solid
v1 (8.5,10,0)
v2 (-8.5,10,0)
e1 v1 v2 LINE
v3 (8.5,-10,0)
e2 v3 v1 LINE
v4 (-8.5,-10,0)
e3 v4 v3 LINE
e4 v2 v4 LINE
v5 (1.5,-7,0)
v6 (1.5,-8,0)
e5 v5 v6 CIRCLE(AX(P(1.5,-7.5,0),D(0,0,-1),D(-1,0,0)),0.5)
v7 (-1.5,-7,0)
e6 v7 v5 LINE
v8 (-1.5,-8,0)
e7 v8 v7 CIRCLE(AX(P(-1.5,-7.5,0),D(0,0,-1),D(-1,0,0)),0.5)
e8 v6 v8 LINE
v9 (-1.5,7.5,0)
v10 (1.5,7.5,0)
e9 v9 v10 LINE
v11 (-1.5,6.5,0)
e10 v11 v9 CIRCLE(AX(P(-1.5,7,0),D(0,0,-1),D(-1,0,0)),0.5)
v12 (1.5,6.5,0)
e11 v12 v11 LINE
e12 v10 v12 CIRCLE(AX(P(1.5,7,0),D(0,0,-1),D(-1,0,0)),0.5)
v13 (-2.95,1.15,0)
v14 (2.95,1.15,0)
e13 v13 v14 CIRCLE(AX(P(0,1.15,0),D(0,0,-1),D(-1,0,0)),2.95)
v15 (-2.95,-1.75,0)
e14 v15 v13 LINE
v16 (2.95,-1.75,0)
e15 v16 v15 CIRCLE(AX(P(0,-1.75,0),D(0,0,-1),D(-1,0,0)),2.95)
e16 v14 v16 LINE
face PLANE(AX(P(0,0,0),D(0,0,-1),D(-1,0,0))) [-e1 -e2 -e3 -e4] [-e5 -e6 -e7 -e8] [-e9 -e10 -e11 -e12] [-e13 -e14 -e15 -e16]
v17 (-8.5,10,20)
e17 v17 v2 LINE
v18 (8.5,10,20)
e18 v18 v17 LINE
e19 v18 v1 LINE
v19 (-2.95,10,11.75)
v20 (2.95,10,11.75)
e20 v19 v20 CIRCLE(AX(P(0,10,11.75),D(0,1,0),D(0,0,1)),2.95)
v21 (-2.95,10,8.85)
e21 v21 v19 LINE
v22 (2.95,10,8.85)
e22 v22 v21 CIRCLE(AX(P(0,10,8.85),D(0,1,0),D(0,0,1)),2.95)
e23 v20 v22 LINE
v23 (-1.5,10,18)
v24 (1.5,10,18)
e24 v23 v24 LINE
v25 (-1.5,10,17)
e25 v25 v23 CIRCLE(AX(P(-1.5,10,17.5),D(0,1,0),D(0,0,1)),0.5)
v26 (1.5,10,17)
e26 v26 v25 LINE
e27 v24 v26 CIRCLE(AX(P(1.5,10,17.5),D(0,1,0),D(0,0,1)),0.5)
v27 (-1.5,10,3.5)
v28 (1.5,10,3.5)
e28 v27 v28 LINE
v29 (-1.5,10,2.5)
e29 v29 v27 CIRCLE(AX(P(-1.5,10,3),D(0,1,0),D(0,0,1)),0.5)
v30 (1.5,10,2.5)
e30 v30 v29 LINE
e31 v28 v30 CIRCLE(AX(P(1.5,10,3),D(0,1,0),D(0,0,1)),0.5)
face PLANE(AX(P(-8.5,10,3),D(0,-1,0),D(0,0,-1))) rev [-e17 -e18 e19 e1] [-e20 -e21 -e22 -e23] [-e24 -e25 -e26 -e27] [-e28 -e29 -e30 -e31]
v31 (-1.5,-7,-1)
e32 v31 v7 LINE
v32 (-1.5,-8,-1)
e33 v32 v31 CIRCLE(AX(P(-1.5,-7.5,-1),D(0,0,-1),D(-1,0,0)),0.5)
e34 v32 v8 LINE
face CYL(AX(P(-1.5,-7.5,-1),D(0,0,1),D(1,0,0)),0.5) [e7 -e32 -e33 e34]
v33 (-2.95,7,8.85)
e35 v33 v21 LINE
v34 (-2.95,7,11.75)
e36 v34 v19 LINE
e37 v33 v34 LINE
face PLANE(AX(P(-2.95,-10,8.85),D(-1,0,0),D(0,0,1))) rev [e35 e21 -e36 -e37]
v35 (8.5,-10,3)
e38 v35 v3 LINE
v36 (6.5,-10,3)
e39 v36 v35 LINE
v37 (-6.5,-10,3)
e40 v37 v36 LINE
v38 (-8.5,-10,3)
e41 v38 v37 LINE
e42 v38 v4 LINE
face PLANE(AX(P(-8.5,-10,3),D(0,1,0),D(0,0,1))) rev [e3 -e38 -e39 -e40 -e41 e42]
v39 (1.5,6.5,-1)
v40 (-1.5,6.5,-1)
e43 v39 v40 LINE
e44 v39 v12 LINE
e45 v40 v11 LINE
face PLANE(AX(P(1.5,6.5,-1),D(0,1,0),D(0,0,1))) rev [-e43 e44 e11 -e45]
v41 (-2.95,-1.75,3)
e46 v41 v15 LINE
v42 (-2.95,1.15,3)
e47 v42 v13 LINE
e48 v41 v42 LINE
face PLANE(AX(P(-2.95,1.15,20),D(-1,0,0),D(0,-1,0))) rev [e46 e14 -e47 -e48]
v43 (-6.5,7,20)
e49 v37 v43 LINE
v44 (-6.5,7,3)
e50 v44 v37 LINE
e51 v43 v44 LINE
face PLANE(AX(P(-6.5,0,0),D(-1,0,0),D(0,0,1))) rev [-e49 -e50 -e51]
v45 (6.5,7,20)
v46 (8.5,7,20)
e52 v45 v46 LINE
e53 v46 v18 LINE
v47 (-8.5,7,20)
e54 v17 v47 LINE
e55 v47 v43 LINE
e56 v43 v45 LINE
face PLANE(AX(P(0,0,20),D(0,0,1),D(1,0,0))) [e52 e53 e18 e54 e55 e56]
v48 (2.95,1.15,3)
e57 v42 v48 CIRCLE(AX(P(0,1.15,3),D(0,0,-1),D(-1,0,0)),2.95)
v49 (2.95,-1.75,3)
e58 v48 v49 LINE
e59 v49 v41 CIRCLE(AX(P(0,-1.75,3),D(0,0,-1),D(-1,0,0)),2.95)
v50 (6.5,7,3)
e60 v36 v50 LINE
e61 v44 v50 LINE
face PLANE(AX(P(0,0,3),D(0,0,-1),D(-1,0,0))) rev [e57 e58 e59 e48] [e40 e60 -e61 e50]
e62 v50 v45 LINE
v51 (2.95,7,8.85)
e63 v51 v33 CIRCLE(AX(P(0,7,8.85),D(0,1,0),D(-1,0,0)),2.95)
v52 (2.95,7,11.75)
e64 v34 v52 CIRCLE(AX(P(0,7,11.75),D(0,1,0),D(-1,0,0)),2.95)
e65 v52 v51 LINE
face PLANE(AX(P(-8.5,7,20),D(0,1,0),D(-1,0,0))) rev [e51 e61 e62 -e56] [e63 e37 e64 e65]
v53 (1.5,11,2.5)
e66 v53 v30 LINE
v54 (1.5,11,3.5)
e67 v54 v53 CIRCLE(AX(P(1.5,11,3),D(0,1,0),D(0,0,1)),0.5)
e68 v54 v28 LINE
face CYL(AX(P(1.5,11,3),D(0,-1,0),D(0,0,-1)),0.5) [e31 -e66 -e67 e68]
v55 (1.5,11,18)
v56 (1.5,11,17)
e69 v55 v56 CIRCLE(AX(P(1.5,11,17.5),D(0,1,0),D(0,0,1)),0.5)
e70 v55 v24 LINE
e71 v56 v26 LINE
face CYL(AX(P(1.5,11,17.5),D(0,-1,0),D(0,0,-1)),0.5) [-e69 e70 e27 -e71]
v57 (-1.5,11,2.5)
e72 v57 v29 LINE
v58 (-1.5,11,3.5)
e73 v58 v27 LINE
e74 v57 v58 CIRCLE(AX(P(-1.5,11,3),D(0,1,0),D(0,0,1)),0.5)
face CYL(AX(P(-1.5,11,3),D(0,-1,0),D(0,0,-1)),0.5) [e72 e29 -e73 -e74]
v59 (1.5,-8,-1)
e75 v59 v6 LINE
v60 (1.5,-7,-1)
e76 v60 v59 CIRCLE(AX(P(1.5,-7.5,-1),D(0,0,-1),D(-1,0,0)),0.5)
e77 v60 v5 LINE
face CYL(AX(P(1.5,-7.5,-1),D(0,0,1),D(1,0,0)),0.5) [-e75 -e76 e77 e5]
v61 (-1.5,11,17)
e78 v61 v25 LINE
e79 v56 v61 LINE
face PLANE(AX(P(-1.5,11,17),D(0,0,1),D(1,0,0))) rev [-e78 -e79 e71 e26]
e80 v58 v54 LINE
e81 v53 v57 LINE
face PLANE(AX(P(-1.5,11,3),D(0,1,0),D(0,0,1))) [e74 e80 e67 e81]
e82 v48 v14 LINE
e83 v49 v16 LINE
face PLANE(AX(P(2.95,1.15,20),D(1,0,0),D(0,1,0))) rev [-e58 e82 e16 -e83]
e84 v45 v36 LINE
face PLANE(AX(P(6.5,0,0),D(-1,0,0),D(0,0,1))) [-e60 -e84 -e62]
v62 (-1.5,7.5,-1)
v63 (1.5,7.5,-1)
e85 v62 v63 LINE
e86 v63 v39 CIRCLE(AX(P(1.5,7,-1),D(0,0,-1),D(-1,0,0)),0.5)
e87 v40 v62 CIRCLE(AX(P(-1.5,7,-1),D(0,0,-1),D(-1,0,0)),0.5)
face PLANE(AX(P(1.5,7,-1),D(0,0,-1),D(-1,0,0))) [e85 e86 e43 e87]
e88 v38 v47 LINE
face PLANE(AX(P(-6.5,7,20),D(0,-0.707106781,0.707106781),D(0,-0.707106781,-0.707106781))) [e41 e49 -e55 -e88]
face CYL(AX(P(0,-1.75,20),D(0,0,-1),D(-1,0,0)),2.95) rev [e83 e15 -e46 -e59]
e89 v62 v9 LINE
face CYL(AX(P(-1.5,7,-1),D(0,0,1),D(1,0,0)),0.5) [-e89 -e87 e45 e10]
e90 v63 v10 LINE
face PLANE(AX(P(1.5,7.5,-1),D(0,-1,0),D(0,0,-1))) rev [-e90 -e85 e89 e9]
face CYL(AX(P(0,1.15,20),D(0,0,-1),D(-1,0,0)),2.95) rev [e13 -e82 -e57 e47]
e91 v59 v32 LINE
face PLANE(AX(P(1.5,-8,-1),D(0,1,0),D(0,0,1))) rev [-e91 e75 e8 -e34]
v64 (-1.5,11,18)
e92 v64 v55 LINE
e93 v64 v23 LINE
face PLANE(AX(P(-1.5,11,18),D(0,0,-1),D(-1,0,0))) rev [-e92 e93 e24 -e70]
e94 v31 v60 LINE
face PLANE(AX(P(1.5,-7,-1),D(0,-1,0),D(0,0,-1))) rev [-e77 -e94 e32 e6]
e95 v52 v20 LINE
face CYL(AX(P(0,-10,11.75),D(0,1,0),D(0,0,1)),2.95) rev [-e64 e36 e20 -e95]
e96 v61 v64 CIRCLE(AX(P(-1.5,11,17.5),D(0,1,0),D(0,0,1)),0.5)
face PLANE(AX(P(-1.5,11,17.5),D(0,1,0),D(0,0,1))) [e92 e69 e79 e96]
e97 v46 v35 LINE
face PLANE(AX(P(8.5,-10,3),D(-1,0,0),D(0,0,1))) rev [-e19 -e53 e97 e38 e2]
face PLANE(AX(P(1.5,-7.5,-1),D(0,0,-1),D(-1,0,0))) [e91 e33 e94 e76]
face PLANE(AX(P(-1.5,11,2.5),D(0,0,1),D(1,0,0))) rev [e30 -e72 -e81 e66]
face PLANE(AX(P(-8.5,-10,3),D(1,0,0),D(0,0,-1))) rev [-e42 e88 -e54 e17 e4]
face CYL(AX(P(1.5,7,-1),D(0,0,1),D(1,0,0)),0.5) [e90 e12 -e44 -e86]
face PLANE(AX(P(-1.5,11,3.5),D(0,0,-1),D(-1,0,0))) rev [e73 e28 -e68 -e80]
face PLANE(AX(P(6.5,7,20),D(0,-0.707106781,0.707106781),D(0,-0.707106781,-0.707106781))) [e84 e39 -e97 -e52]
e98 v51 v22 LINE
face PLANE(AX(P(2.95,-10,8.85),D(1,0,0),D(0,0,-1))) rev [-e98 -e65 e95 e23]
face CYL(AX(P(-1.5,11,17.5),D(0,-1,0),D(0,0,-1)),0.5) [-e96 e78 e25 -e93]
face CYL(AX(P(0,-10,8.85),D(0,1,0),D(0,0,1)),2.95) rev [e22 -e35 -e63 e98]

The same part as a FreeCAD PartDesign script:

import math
import FreeCAD as App
import Part
import Sketcher
from FreeCAD import Vector
Q = App.Units.Quantity

doc = App.newDocument("Part")
body = doc.addObject("PartDesign::Body", "Body")

# Sketch on XY plane
sketch1 = doc.addObject("Sketcher::SketchObject", "Sketch")
body.addObject(sketch1)
sketch1.AttachmentSupport = (doc.XY_Plane, [""])
sketch1.MapMode = "FlatFace"
sketch1.addGeometry([
    Part.LineSegment(Vector(-8, 10, 0), Vector(-8, -10, 0)),
    Part.LineSegment(Vector(-8, -10, 0), Vector(8, -10, 0)),
    Part.LineSegment(Vector(8, -10, 0), Vector(8, 10, 0)),
    Part.LineSegment(Vector(8, 10, 0), Vector(-8, 10, 0)),
], False)
sketch1.addConstraint([
    Sketcher.Constraint("Coincident", 0, 2, 1, 1),
    Sketcher.Constraint("Coincident", 1, 2, 2, 1),
    Sketcher.Constraint("Coincident", 2, 2, 3, 1),
    Sketcher.Constraint("Coincident", 3, 2, 0, 1),
    Sketcher.Constraint("Vertical", 0),
    Sketcher.Constraint("Horizontal", 1),
    Sketcher.Constraint("Vertical", 2),
    Sketcher.Constraint("Horizontal", 3),
    Sketcher.Constraint("Symmetric", 0, 2, 2, 2, -1, 1),
    Sketcher.Constraint("DistanceX", 1, 1, 1, 2, Q("17 mm")),
    Sketcher.Constraint("DistanceY", 0, 2, 0, 1, Q("20 mm")),
])
pad1 = doc.addObject("PartDesign::Pad", "Pad")
body.addObject(pad1)
pad1.Profile = sketch1
pad1.Length = 3

# Sketch on XY plane
sketch2 = doc.addObject("Sketcher::SketchObject", "Sketch001")
body.addObject(sketch2)
sketch2.AttachmentSupport = (doc.XY_Plane, [""])
sketch2.MapMode = "FlatFace"
sketch2.AttachmentOffset = App.Placement(Vector(0, 0, 3), App.Rotation())
sketch2.addGeometry([
    Part.LineSegment(Vector(-8.5, 10, 0), Vector(-8.5, 7, 0)),
    Part.LineSegment(Vector(-8.5, 7, 0), Vector(8.5, 7, 0)),
    Part.LineSegment(Vector(8.5, 7, 0), Vector(8.5, 10, 0)),
    Part.LineSegment(Vector(8.5, 10, 0), Vector(-8.5, 10, 0)),
], False)
sketch2.addConstraint([
    Sketcher.Constraint("Coincident", 0, 2, 1, 1),
    Sketcher.Constraint("Coincident", 1, 2, 2, 1),
    Sketcher.Constraint("Coincident", 2, 2, 3, 1),
    Sketcher.Constraint("Coincident", 3, 2, 0, 1),
    Sketcher.Constraint("Vertical", 0),
    Sketcher.Constraint("Horizontal", 1),
    Sketcher.Constraint("Vertical", 2),
    Sketcher.Constraint("Horizontal", 3),
    Sketcher.Constraint("DistanceX", 1, 1, 1, 2, Q("17 mm")),
    Sketcher.Constraint("DistanceY", 0, 2, 0, 1, Q("3 mm")),
    Sketcher.Constraint("DistanceY", -1, 1, 0, 2, Q("7 mm")),
    Sketcher.Constraint("DistanceX", 0, 2, -1, 1, Q("8.5 mm")),
])
pad2 = doc.addObject("PartDesign::Pad", "Pad001")
body.addObject(pad2)
pad2.Profile = sketch2
pad2.Length = 17

# Sketch on YZ plane
sketch3 = doc.addObject("Sketcher::SketchObject", "Sketch002")
body.addObject(sketch3)
sketch3.AttachmentSupport = (doc.YZ_Plane, [""])
sketch3.MapMode = "FlatFace"
sketch3.AttachmentOffset = App.Placement(Vector(0, 0, -8.5), App.Rotation())
sketch3.addGeometry([
    Part.LineSegment(Vector(-10, 3, 0), Vector(7, 20, 0)),
    Part.LineSegment(Vector(7, 20, 0), Vector(7, 3, 0)),
    Part.LineSegment(Vector(7, 3, 0), Vector(-10, 3, 0)),
], False)
sketch3.addConstraint([
    Sketcher.Constraint("Coincident", 0, 2, 1, 1),
    Sketcher.Constraint("Coincident", 1, 2, 2, 1),
    Sketcher.Constraint("Coincident", 2, 2, 0, 1),
    Sketcher.Constraint("Vertical", 1),
    Sketcher.Constraint("Horizontal", 2),
    Sketcher.Constraint("Equal", 2, 1),
    Sketcher.Constraint("DistanceX", 2, 2, 2, 1, Q("17 mm")),
    Sketcher.Constraint("DistanceX", -1, 1, 0, 2, Q("7 mm")),
    Sketcher.Constraint("DistanceY", -1, 1, 0, 2, Q("20 mm")),
])
pad3 = doc.addObject("PartDesign::Pad", "Pad002")
body.addObject(pad3)
pad3.Profile = sketch3
pad3.Length = 2

# Sketch on YZ plane
sketch4 = doc.addObject("Sketcher::SketchObject", "Sketch003")
body.addObject(sketch4)
sketch4.AttachmentSupport = (doc.YZ_Plane, [""])
sketch4.MapMode = "FlatFace"
sketch4.AttachmentOffset = App.Placement(Vector(0, 0, 8.5), App.Rotation())
sketch4.addGeometry([
    Part.LineSegment(Vector(7, 20, 0), Vector(-10, 3, 0)),
    Part.LineSegment(Vector(-10, 3, 0), Vector(7, 3, 0)),
    Part.LineSegment(Vector(7, 3, 0), Vector(7, 20, 0)),
], False)
sketch4.addConstraint([
    Sketcher.Constraint("Coincident", 0, 2, 1, 1),
    Sketcher.Constraint("Coincident", 1, 2, 2, 1),
    Sketcher.Constraint("Coincident", 2, 2, 0, 1),
    Sketcher.Constraint("Horizontal", 1),
    Sketcher.Constraint("Vertical", 2),
    Sketcher.Constraint("Equal", 1, 2),
    Sketcher.Constraint("DistanceX", 1, 1, 1, 2, Q("17 mm")),
    Sketcher.Constraint("DistanceX", 0, 2, -1, 1, Q("10 mm")),
    Sketcher.Constraint("DistanceY", -1, 1, 0, 2, Q("3 mm")),
])
pad4 = doc.addObject("PartDesign::Pad", "Pad003")
body.addObject(pad4)
pad4.Profile = sketch4
pad4.Length = 2
pad4.Reversed = True

# Sketch on XZ plane
sketch5 = doc.addObject("Sketcher::SketchObject", "Sketch004")
body.addObject(sketch5)
sketch5.AttachmentSupport = (doc.XZ_Plane, [""])
sketch5.MapMode = "FlatFace"
sketch5.AttachmentOffset = App.Placement(Vector(0, 0, -10), App.Rotation())
sketch5.addGeometry([
    Part.LineSegment(Vector(1.5, 2.5, 0), Vector(-1.5, 2.5, 0)),  # 0
    Part.ArcOfCircle(Part.Circle(Vector(-1.5, 3, 0), Vector(0, 0, 1), 0.5), math.radians(90), math.radians(270)),  # 1
    Part.LineSegment(Vector(-1.5, 3.5, 0), Vector(1.5, 3.5, 0)),  # 2
    Part.ArcOfCircle(Part.Circle(Vector(1.5, 3, 0), Vector(0, 0, 1), 0.5), math.radians(-90), math.radians(90)),  # 3
    Part.LineSegment(Vector(1.5, 17, 0), Vector(-1.5, 17, 0)),  # 4
    Part.ArcOfCircle(Part.Circle(Vector(-1.5, 17.5, 0), Vector(0, 0, 1), 0.5), math.radians(90), math.radians(270)),  # 5
    Part.LineSegment(Vector(-1.5, 18, 0), Vector(1.5, 18, 0)),  # 6
    Part.ArcOfCircle(Part.Circle(Vector(1.5, 17.5, 0), Vector(0, 0, 1), 0.5), math.radians(-90), math.radians(90)),  # 7
], False)
sketch5.addConstraint([
    Sketcher.Constraint("Tangent", 0, 2, 1, 2),
    Sketcher.Constraint("Tangent", 1, 1, 2, 1),
    Sketcher.Constraint("Tangent", 2, 2, 3, 2),
    Sketcher.Constraint("Tangent", 3, 1, 0, 1),
    Sketcher.Constraint("Tangent", 4, 2, 5, 2),
    Sketcher.Constraint("Tangent", 5, 1, 6, 1),
    Sketcher.Constraint("Tangent", 6, 2, 7, 2),
    Sketcher.Constraint("Tangent", 7, 1, 4, 1),
    Sketcher.Constraint("Horizontal", 0),
    Sketcher.Constraint("Horizontal", 2),
    Sketcher.Constraint("Horizontal", 4),
    Sketcher.Constraint("Horizontal", 6),
    Sketcher.Constraint("Equal", 3, 5),
    Sketcher.Constraint("Vertical", 1, 3, 5, 3),
    Sketcher.Constraint("Vertical", 3, 3, 7, 3),
    Sketcher.Constraint("Radius", 1, Q("0.5 mm")),
    Sketcher.Constraint("DistanceX", 0, 2, 0, 1, Q("3 mm")),
    Sketcher.Constraint("DistanceY", -1, 1, 1, 3, Q("3 mm")),
    Sketcher.Constraint("DistanceY", -1, 1, 4, 2, Q("17 mm")),
    Sketcher.Constraint("DistanceX", 1, 3, -1, 1, Q("1.5 mm")),
])
pad5 = doc.addObject("PartDesign::Pad", "Pad004")
body.addObject(pad5)
pad5.Profile = sketch5
pad5.Length = 1
pad5.Reversed = True

# Sketch on XY plane
sketch6 = doc.addObject("Sketcher::SketchObject", "Sketch005")
body.addObject(sketch6)
sketch6.AttachmentSupport = (doc.XY_Plane, [""])
sketch6.MapMode = "FlatFace"
sketch6.addGeometry([
    Part.LineSegment(Vector(-1.5, 7.5, 0), Vector(1.5, 7.5, 0)),  # 0
    Part.ArcOfCircle(Part.Circle(Vector(1.5, 7, 0), Vector(0, 0, 1), 0.5), math.radians(-90), math.radians(90)),  # 1
    Part.LineSegment(Vector(1.5, 6.5, 0), Vector(-1.5, 6.5, 0)),  # 2
    Part.ArcOfCircle(Part.Circle(Vector(-1.5, 7, 0), Vector(0, 0, 1), 0.5), math.radians(90), math.radians(270)),  # 3
    Part.LineSegment(Vector(-1.5, -7, 0), Vector(1.5, -7, 0)),  # 4
    Part.ArcOfCircle(Part.Circle(Vector(1.5, -7.5, 0), Vector(0, 0, 1), 0.5), math.radians(-90), math.radians(90)),  # 5
    Part.LineSegment(Vector(1.5, -8, 0), Vector(-1.5, -8, 0)),  # 6
    Part.ArcOfCircle(Part.Circle(Vector(-1.5, -7.5, 0), Vector(0, 0, 1), 0.5), math.radians(90), math.radians(270)),  # 7
], False)
sketch6.addConstraint([
    Sketcher.Constraint("Tangent", 0, 2, 1, 2),
    Sketcher.Constraint("Tangent", 1, 1, 2, 1),
    Sketcher.Constraint("Tangent", 2, 2, 3, 2),
    Sketcher.Constraint("Tangent", 3, 1, 0, 1),
    Sketcher.Constraint("Tangent", 4, 2, 5, 2),
    Sketcher.Constraint("Tangent", 5, 1, 6, 1),
    Sketcher.Constraint("Tangent", 6, 2, 7, 2),
    Sketcher.Constraint("Tangent", 7, 1, 4, 1),
    Sketcher.Constraint("Horizontal", 0),
    Sketcher.Constraint("Horizontal", 2),
    Sketcher.Constraint("Horizontal", 4),
    Sketcher.Constraint("Horizontal", 6),
    Sketcher.Constraint("Equal", 3, 5),
    Sketcher.Constraint("Vertical", 1, 3, 5, 3),
    Sketcher.Constraint("Vertical", 3, 3, 7, 3),
    Sketcher.Constraint("Radius", 1, Q("0.5 mm")),
    Sketcher.Constraint("DistanceX", 0, 1, 0, 2, Q("3 mm")),
    Sketcher.Constraint("DistanceY", -1, 1, 1, 3, Q("7 mm")),
    Sketcher.Constraint("DistanceY", 4, 2, -1, 1, Q("7 mm")),
    Sketcher.Constraint("DistanceX", -1, 1, 1, 3, Q("1.5 mm")),
])
pad6 = doc.addObject("PartDesign::Pad", "Pad005")
body.addObject(pad6)
pad6.Profile = sketch6
pad6.Length = 1
pad6.Reversed = True

# Sketch on XY plane
sketch7 = doc.addObject("Sketcher::SketchObject", "Sketch006")
body.addObject(sketch7)
sketch7.AttachmentSupport = (doc.XY_Plane, [""])
sketch7.MapMode = "FlatFace"
sketch7.addGeometry([
    Part.LineSegment(Vector(-3, -1.8, 0), Vector(-3, 1.1, 0)),
    Part.ArcOfCircle(Part.Circle(Vector(0, 1.1, 0), Vector(0, 0, 1), 3), math.radians(0), math.radians(180)),
    Part.LineSegment(Vector(3, 1.1, 0), Vector(3, -1.8, 0)),
    Part.ArcOfCircle(Part.Circle(Vector(0, -1.8, 0), Vector(0, 0, 1), 3), math.radians(180), math.radians(360)),
], False)
sketch7.addConstraint([
    Sketcher.Constraint("Tangent", 0, 2, 1, 2),
    Sketcher.Constraint("Tangent", 1, 1, 2, 1),
    Sketcher.Constraint("Tangent", 2, 2, 3, 2),
    Sketcher.Constraint("Tangent", 3, 1, 0, 1),
    Sketcher.Constraint("Vertical", 0),
    Sketcher.Constraint("Vertical", 2),
    Sketcher.Constraint("PointOnObject", 1, 3, -2),
    Sketcher.Constraint("Radius", 1, Q("2.95 mm")),
    Sketcher.Constraint("DistanceY", 0, 1, 0, 2, Q("2.9 mm")),
    Sketcher.Constraint("DistanceY", -1, 1, 1, 3, Q("1.15 mm")),
])
pocket1 = doc.addObject("PartDesign::Pocket", "Pocket")
body.addObject(pocket1)
pocket1.Profile = sketch7
pocket1.Type = "ThroughAll"
pocket1.Reversed = True

# Sketch on XZ plane
sketch8 = doc.addObject("Sketcher::SketchObject", "Sketch007")
body.addObject(sketch8)
sketch8.AttachmentSupport = (doc.XZ_Plane, [""])
sketch8.MapMode = "FlatFace"
sketch8.AttachmentOffset = App.Placement(Vector(0, 0, -10), App.Rotation())
sketch8.addGeometry([
    Part.LineSegment(Vector(3, 11.8, 0), Vector(3, 8.8, 0)),
    Part.ArcOfCircle(Part.Circle(Vector(0, 8.8, 0), Vector(0, 0, 1), 3), math.radians(180), math.radians(360)),
    Part.LineSegment(Vector(-3, 8.8, 0), Vector(-3, 11.8, 0)),
    Part.ArcOfCircle(Part.Circle(Vector(0, 11.8, 0), Vector(0, 0, 1), 3), math.radians(0), math.radians(180)),
], False)
sketch8.addConstraint([
    Sketcher.Constraint("Tangent", 0, 2, 1, 2),
    Sketcher.Constraint("Tangent", 1, 1, 2, 1),
    Sketcher.Constraint("Tangent", 2, 2, 3, 2),
    Sketcher.Constraint("Tangent", 3, 1, 0, 1),
    Sketcher.Constraint("Vertical", 0),
    Sketcher.Constraint("Vertical", 2),
    Sketcher.Constraint("PointOnObject", 1, 3, -2),
    Sketcher.Constraint("Radius", 1, Q("2.95 mm")),
    Sketcher.Constraint("DistanceY", 0, 2, 0, 1, Q("2.9 mm")),
    Sketcher.Constraint("DistanceY", -1, 1, 1, 3, Q("8.85 mm")),
])
pocket2 = doc.addObject("PartDesign::Pocket", "Pocket001")
body.addObject(pocket2)
pocket2.Profile = sketch8
pocket2.Type = "ThroughAll"
pocket2.Reversed = True

doc.recompute()
